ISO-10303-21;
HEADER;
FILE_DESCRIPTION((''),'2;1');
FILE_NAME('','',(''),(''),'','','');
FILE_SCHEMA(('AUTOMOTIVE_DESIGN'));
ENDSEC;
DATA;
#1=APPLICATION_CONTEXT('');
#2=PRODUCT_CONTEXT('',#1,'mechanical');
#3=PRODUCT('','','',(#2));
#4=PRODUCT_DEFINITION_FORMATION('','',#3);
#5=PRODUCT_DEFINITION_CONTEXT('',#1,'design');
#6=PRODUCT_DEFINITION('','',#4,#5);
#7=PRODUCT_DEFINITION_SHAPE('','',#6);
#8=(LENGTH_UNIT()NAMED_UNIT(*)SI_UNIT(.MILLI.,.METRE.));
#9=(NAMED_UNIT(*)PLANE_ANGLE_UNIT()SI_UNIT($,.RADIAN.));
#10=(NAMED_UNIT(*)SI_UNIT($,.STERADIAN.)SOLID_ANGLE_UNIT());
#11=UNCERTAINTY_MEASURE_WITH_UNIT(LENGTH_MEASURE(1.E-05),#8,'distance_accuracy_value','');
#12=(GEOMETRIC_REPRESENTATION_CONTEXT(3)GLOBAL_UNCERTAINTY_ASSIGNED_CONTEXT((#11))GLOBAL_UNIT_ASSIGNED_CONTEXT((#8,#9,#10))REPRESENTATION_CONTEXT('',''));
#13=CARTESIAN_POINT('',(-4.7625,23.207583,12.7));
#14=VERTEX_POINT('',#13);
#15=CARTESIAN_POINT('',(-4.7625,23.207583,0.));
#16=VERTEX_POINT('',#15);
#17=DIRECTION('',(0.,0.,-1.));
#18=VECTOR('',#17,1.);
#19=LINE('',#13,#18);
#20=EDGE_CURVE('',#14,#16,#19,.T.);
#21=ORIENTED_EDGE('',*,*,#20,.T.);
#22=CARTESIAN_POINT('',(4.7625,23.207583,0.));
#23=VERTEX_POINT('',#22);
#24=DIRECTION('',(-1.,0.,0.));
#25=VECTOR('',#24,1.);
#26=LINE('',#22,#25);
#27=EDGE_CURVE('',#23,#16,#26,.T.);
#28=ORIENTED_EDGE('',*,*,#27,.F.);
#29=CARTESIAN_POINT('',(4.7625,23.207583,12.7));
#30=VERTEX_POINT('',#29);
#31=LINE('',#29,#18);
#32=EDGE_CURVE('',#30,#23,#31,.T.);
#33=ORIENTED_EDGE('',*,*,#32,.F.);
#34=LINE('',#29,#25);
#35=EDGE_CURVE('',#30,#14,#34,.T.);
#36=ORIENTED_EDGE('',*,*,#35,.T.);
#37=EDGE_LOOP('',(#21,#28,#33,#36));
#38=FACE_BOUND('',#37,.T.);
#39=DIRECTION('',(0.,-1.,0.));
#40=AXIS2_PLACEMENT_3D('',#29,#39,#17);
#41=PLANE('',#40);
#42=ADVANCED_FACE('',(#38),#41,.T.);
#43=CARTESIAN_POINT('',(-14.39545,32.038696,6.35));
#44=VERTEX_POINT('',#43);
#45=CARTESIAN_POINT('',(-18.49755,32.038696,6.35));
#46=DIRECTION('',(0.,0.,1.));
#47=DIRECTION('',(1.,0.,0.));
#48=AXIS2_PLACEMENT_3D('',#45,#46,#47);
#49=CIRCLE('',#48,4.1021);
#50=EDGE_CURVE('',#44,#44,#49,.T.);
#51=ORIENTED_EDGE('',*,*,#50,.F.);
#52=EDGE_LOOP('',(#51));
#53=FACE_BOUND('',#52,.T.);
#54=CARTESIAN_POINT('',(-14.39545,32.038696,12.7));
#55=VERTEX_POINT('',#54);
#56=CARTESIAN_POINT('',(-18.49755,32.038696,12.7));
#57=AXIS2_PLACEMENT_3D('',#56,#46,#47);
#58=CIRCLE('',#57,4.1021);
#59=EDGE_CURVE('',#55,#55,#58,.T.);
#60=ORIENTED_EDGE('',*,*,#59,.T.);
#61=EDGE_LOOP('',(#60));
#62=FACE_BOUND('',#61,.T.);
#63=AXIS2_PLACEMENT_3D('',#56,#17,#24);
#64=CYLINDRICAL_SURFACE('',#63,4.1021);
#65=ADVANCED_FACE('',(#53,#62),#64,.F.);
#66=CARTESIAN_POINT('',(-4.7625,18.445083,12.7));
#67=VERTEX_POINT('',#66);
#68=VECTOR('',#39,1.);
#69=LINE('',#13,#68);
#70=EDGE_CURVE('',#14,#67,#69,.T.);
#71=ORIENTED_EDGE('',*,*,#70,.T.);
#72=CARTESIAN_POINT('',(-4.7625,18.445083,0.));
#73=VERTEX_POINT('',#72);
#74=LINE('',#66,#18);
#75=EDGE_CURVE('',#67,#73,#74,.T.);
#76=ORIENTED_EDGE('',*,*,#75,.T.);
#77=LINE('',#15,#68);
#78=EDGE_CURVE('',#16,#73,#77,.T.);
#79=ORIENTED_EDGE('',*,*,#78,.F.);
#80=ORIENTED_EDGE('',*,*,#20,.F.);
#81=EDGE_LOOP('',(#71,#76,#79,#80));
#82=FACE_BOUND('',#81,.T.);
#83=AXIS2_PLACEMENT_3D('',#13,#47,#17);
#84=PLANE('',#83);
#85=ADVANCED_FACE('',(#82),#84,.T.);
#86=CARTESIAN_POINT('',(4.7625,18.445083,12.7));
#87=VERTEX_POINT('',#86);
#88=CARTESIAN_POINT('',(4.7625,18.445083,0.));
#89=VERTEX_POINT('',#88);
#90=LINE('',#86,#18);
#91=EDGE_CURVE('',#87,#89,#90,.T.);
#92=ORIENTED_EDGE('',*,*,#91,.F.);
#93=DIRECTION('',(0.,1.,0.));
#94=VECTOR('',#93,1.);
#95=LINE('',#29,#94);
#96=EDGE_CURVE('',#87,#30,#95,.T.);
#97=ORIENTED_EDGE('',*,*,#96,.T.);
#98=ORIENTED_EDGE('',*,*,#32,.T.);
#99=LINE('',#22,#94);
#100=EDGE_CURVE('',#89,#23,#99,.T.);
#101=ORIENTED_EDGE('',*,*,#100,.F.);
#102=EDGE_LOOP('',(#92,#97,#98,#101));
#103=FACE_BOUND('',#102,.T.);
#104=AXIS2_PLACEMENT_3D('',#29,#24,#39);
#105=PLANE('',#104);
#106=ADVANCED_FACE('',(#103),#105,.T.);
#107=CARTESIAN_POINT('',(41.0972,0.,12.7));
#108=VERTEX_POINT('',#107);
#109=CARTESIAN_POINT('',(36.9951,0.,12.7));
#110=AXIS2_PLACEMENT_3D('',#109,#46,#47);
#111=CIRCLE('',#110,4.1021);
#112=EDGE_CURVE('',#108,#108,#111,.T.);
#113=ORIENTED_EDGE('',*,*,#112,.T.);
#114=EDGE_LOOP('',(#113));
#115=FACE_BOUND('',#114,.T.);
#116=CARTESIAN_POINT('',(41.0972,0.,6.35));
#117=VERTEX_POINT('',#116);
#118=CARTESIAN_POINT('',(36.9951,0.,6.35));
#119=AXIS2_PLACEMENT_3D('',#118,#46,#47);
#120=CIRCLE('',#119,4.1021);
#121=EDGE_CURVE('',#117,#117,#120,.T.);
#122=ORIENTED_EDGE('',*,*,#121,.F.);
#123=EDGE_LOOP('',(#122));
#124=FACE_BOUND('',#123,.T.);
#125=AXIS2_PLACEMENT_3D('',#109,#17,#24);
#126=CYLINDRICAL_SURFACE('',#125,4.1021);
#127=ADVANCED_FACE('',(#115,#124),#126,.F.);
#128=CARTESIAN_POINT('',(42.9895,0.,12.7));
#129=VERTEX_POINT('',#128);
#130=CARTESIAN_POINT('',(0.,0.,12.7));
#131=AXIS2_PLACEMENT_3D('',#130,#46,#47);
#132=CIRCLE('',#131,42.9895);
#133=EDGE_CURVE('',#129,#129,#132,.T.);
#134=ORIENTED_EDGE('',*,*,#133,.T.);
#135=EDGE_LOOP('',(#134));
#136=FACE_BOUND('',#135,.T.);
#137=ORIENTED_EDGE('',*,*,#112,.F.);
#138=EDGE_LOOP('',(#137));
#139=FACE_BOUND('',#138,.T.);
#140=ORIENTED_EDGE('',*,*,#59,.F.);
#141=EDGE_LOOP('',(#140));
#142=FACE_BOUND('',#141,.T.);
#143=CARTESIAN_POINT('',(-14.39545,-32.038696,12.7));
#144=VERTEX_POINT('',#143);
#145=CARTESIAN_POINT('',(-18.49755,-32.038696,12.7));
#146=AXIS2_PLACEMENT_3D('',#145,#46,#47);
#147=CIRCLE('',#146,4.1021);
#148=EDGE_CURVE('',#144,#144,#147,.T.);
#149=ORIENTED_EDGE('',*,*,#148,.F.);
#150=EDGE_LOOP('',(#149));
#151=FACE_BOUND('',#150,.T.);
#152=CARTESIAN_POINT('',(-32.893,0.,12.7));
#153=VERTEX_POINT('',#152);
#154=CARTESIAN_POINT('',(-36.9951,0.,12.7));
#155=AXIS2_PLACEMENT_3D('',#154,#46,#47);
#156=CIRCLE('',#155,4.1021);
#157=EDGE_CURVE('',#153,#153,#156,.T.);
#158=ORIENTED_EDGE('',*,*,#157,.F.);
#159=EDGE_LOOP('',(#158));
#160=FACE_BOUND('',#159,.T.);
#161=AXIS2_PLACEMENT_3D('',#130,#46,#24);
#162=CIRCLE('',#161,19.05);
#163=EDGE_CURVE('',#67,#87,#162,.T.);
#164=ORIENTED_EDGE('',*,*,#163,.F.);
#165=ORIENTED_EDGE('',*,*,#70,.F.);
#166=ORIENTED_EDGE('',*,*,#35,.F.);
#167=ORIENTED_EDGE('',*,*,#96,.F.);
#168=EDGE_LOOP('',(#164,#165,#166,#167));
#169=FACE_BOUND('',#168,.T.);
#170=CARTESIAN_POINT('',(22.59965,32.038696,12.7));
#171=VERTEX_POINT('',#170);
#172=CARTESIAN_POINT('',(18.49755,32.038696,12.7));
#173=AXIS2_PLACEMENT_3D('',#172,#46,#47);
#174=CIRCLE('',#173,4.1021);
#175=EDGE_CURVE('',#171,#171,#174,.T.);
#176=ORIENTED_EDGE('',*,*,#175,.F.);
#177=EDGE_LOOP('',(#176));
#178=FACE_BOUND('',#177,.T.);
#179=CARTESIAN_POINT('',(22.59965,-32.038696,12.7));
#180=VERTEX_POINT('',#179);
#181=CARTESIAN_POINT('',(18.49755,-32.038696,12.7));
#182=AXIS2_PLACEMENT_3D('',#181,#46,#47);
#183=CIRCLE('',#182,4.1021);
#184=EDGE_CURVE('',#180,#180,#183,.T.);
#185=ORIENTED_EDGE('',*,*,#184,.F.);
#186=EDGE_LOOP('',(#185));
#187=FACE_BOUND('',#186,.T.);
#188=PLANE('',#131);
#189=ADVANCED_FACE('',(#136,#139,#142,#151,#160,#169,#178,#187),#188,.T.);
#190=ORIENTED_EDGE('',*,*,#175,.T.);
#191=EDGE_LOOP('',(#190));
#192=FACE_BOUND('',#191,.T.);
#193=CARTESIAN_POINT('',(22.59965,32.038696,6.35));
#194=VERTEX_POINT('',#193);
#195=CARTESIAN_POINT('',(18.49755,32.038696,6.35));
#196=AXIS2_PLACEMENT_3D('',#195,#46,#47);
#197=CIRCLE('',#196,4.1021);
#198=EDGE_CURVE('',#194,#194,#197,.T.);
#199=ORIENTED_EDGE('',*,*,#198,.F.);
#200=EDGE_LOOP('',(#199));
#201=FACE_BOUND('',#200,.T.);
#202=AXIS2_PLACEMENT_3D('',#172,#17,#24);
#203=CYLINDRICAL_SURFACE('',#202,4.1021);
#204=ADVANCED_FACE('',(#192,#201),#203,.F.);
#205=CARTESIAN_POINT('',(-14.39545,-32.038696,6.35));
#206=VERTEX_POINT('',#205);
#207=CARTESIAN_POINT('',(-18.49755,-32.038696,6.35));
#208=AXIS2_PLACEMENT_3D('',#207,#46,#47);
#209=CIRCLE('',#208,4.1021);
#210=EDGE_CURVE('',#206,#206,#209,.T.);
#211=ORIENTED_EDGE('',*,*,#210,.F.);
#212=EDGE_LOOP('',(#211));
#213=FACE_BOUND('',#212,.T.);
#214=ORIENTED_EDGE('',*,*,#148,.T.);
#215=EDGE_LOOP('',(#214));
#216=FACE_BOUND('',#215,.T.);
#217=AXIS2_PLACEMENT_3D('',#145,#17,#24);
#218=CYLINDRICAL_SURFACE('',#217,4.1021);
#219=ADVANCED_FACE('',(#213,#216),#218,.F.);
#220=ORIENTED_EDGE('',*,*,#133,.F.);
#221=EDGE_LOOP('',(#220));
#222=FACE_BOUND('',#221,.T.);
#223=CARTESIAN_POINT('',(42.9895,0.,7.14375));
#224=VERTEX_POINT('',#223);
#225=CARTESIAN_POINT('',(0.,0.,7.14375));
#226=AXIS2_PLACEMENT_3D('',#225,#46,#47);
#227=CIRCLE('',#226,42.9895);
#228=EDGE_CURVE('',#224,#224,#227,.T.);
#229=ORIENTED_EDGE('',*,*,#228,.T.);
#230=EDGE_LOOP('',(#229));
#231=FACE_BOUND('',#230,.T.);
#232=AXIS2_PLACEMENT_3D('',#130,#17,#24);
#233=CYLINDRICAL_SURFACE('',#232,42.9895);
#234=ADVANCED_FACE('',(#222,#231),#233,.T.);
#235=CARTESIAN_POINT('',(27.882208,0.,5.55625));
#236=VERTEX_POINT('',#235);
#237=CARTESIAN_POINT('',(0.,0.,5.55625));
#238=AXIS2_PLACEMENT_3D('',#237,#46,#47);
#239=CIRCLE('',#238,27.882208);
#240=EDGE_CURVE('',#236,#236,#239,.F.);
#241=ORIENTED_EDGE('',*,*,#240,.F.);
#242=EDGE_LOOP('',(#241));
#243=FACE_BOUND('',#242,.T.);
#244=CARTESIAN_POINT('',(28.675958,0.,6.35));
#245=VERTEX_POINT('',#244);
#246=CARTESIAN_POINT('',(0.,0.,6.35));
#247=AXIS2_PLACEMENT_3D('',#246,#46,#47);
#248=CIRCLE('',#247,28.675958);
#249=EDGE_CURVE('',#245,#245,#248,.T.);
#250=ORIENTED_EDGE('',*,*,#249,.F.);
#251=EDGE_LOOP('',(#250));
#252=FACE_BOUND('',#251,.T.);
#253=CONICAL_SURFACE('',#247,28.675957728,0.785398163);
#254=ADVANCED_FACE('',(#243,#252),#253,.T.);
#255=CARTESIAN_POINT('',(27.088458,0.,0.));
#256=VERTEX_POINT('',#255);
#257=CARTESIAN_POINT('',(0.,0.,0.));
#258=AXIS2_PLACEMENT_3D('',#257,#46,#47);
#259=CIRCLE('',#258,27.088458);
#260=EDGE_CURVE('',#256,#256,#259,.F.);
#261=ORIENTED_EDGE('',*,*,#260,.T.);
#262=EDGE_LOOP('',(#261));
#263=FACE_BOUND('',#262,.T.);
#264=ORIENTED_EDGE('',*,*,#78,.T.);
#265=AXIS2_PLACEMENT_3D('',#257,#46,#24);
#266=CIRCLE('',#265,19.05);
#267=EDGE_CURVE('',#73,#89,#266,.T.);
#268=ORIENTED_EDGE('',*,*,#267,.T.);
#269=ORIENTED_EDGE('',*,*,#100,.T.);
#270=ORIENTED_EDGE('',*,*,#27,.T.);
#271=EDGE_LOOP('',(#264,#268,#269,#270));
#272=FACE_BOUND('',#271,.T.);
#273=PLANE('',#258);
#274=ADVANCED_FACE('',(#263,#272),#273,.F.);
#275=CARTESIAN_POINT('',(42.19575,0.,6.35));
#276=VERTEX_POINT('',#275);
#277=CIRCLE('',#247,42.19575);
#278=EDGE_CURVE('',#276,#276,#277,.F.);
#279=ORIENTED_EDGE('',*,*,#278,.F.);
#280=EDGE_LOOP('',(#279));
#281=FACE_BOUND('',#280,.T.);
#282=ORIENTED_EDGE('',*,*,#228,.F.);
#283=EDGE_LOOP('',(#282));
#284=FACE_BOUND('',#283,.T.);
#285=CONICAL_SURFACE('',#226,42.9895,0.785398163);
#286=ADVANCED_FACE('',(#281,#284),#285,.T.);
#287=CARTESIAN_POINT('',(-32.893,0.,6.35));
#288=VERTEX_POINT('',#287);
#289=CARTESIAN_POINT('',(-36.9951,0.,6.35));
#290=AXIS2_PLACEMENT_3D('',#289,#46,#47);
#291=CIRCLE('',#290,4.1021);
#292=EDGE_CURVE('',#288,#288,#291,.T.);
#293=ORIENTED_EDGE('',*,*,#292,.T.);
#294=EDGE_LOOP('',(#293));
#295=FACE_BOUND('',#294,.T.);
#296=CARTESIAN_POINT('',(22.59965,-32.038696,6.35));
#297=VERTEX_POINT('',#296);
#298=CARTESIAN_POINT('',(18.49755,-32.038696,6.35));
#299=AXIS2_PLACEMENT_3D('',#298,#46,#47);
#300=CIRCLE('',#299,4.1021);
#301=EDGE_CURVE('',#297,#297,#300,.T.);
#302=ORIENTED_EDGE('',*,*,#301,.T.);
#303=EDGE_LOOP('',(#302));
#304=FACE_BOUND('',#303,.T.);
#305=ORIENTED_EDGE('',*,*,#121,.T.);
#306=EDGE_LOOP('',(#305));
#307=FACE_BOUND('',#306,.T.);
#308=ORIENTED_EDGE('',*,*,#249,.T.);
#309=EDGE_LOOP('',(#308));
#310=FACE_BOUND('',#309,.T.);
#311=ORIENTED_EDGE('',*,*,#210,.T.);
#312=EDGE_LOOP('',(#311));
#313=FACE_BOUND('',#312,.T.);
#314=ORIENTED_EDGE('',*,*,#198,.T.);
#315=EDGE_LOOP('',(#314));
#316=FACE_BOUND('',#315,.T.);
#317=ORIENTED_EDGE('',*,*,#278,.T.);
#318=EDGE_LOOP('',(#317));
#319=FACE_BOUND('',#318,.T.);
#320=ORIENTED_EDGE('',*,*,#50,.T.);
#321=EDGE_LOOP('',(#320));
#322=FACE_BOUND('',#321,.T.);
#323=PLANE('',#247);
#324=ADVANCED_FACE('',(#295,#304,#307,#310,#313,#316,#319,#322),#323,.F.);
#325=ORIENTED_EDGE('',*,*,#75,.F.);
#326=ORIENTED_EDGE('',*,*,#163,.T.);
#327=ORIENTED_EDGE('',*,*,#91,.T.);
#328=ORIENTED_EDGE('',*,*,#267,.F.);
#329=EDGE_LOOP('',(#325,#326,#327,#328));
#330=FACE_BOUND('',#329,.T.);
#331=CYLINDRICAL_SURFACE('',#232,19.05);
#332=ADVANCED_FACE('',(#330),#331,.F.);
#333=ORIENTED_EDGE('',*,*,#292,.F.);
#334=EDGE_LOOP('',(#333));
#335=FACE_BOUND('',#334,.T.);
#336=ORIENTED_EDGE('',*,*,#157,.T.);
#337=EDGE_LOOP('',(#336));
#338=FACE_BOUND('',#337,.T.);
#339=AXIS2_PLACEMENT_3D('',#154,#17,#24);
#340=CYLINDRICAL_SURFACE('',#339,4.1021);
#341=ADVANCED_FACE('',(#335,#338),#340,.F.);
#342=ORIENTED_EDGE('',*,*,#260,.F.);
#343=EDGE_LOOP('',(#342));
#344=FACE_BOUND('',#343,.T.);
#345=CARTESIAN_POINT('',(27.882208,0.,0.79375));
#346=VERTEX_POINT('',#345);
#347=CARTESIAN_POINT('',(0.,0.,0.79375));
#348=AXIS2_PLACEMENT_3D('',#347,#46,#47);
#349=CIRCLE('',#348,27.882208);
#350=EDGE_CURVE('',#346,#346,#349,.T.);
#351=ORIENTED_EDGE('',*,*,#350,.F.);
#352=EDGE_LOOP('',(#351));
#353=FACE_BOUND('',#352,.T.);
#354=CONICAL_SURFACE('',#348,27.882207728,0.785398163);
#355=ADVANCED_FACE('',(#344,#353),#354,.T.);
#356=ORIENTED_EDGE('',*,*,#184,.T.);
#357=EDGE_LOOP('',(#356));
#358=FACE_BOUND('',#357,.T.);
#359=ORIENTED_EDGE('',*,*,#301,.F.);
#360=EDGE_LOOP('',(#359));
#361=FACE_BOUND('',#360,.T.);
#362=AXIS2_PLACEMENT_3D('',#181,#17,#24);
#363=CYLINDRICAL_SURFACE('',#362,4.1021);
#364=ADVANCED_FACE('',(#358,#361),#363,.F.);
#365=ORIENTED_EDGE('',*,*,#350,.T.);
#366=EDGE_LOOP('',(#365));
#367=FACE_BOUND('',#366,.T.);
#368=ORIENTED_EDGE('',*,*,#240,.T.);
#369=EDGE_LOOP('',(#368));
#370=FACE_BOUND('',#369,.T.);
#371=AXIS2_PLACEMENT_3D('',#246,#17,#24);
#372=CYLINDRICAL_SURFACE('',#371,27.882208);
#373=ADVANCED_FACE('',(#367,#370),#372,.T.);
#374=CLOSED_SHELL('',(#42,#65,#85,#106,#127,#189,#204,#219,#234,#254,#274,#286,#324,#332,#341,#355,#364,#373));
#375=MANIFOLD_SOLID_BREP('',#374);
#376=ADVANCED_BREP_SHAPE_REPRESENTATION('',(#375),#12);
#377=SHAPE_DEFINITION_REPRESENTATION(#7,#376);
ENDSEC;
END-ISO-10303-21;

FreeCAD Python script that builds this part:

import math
import FreeCAD as App
import Part
import Sketcher
from FreeCAD import Vector
Q = App.Units.Quantity


def edges_at(feature, points):
    """Names of the edges that pass closest to the given points."""
    edges = feature.Shape.Edges
    near = lambda p: min(range(len(edges)), key=lambda i: edges[i].distToShape(Part.Vertex(*p))[0])
    return sorted({f"Edge{near(p) + 1}" for p in points})

doc = App.newDocument("Part")
body = doc.addObject("PartDesign::Body", "Body")

# Sketch on XY plane
sketch1 = doc.addObject("Sketcher::SketchObject", "Sketch")
body.addObject(sketch1)
sketch1.AttachmentSupport = (doc.XY_Plane, [""])
sketch1.MapMode = "FlatFace"
sketch1.addGeometry(Part.Circle(Vector(0, 0, 0), Vector(0, 0, 1), 43), False)
sketch1.addGeometry(Part.LineSegment(Vector(-4.8, 18.4, 0), Vector(-4.8, 23.2, 0)), False)
sketch1.addGeometry(Part.LineSegment(Vector(-4.8, 23.2, 0), Vector(4.8, 23.2, 0)), False)
sketch1.addGeometry(Part.LineSegment(Vector(4.8, 23.2, 0), Vector(4.8, 18.4, 0)), False)
sketch1.addGeometry(Part.ArcOfCircle(Part.Circle(Vector(0, 0, 0), Vector(0, 0, 1), 19.1), math.radians(104), math.radians(436)), False)
sketch1.addConstraint(Sketcher.Constraint("Coincident", 1, 2, 2, 1))
sketch1.addConstraint(Sketcher.Constraint("Coincident", 2, 2, 3, 1))
sketch1.addConstraint(Sketcher.Constraint("Coincident", 3, 2, 4, 2))
sketch1.addConstraint(Sketcher.Constraint("Coincident", 4, 1, 1, 1))
sketch1.addConstraint(Sketcher.Constraint("Vertical", 1))
sketch1.addConstraint(Sketcher.Constraint("Horizontal", 2))
sketch1.addConstraint(Sketcher.Constraint("Vertical", 3))
sketch1.addConstraint(Sketcher.Constraint("Coincident", 0, 3, -1, 1))
sketch1.addConstraint(Sketcher.Constraint("Coincident", 4, 3, -1, 1))
sketch1.addConstraint(Sketcher.Constraint("Horizontal", 3, 2, 4, 1))
sketch1.addConstraint(Sketcher.Constraint("Radius", 4, Q("0.75 in")))
sketch1.addConstraint(Sketcher.Constraint("Diameter", 0, Q("3.385 in")))
sketch1.addConstraint(Sketcher.Constraint("DistanceX", 2, 1, 2, 2, Q("0.375 in")))
sketch1.addConstraint(Sketcher.Constraint("DistanceY", 1, 1, 1, 2, Q("0.1875 in")))
pad1 = doc.addObject("PartDesign::Pad", "Pad")
body.addObject(pad1)
pad1.Profile = sketch1
pad1.Length = Q("0.5 in")

# Sketch on XY plane
sketch2 = doc.addObject("Sketcher::SketchObject", "Sketch001")
body.addObject(sketch2)
sketch2.AttachmentSupport = (doc.XY_Plane, [""])
sketch2.MapMode = "FlatFace"
sketch2.addGeometry(Part.Circle(Vector(37, 0, 0), Vector(0, 0, 1), 4.1), False)
sketch2.addGeometry(Part.Circle(Vector(18.5, -32, 0), Vector(0, 0, 1), 4.1), False)
sketch2.addGeometry(Part.Circle(Vector(-18.5, -32, 0), Vector(0, 0, 1), 4.1), False)
sketch2.addGeometry(Part.Circle(Vector(-37, 0, 0), Vector(0, 0, 1), 4.1), False)
sketch2.addGeometry(Part.Circle(Vector(-18.5, 32, 0), Vector(0, 0, 1), 4.1), False)
sketch2.addGeometry(Part.Circle(Vector(18.5, 32, 0), Vector(0, 0, 1), 4.1), False)
sketch2.addConstraint(Sketcher.Constraint("Equal", 0, 1))
sketch2.addConstraint(Sketcher.Constraint("Equal", 1, 2))
sketch2.addConstraint(Sketcher.Constraint("Equal", 2, 3))
sketch2.addConstraint(Sketcher.Constraint("Equal", 3, 4))
sketch2.addConstraint(Sketcher.Constraint("Equal", 4, 5))
sketch2.addConstraint(Sketcher.Constraint("Symmetric", 0, 3, 3, 3, -1, 1))
sketch2.addConstraint(Sketcher.Constraint("Symmetric", 1, 3, 4, 3, -1, 1))
sketch2.addConstraint(Sketcher.Constraint("Symmetric", 2, 3, 5, 3, -1, 1))
sketch2.addConstraint(Sketcher.Constraint("Symmetric", 1, 3, 2, 3, -2))
sketch2.addConstraint(Sketcher.Constraint("PointOnObject", 0, 3, -1))
sketch2.addConstraint(Sketcher.Constraint("Diameter", 0, Q("0.323 in")))
sketch2.addConstraint(Sketcher.Constraint("DistanceX", 3, 3, 0, 3, Q("2.913 in")))
sketch2.addConstraint(Sketcher.Constraint("DistanceX", 2, 3, 1, 3, Q("1.4565 in")))
sketch2.addConstraint(Sketcher.Constraint("DistanceY", 1, 3, -1, 1, 32.038696))
pocket1 = doc.addObject("PartDesign::Pocket", "Pocket")
body.addObject(pocket1)
pocket1.Profile = sketch2
pocket1.Type = "ThroughAll"
pocket1.Reversed = True

# Sketch on XY plane
sketch3 = doc.addObject("Sketcher::SketchObject", "Sketch002")
body.addObject(sketch3)
sketch3.AttachmentSupport = (doc.XY_Plane, [""])
sketch3.MapMode = "FlatFace"
sketch3.addGeometry(Part.LineSegment(Vector(-56, 56, 0), Vector(-56, -56, 0)), False)
sketch3.addGeometry(Part.LineSegment(Vector(-56, -56, 0), Vector(56, -56, 0)), False)
sketch3.addGeometry(Part.LineSegment(Vector(56, -56, 0), Vector(56, 56, 0)), False)
sketch3.addGeometry(Part.LineSegment(Vector(56, 56, 0), Vector(-56, 56, 0)), False)
sketch3.addGeometry(Part.Circle(Vector(0, 0, 0), Vector(0, 0, 1), 28), False)
sketch3.addConstraint(Sketcher.Constraint("Coincident", 0, 2, 1, 1))
sketch3.addConstraint(Sketcher.Constraint("Coincident", 1, 2, 2, 1))
sketch3.addConstraint(Sketcher.Constraint("Coincident", 2, 2, 3, 1))
sketch3.addConstraint(Sketcher.Constraint("Coincident", 3, 2, 0, 1))
sketch3.addConstraint(Sketcher.Constraint("Vertical", 0))
sketch3.addConstraint(Sketcher.Constraint("Horizontal", 1))
sketch3.addConstraint(Sketcher.Constraint("Vertical", 2))
sketch3.addConstraint(Sketcher.Constraint("Horizontal", 3))
sketch3.addConstraint(Sketcher.Constraint("Coincident", 4, 3, -1, 1))
sketch3.addConstraint(Sketcher.Constraint("Symmetric", 0, 2, 2, 2, -1, 1))
sketch3.addConstraint(Sketcher.Constraint("Equal", 3, 0))
sketch3.addConstraint(Sketcher.Constraint("Diameter", 4, 55.764415))
sketch3.addConstraint(Sketcher.Constraint("DistanceX", 1, 1, 1, 2, 112.43))
pocket2 = doc.addObject("PartDesign::Pocket", "Pocket001")
body.addObject(pocket2)
pocket2.Profile = sketch3
pocket2.Length = Q("0.25 in")
pocket2.Reversed = True
doc.recompute()

chamfer = doc.addObject("PartDesign::Chamfer", "Chamfer")
body.addObject(chamfer)
chamfer.Base = (pocket2, edges_at(pocket2, [(-42.989, 0, 6.35), (-27.882, 0, 0)]))
chamfer.Size = Q("0.03125 in")
doc.recompute()

chamfer2 = doc.addObject("PartDesign::Chamfer", "Chamfer001")
body.addObject(chamfer2)
chamfer2.Base = (chamfer, edges_at(chamfer, [(-27.882, 0, 6.35)]))
chamfer2.Size = Q("0.03125 in")

doc.recompute()
